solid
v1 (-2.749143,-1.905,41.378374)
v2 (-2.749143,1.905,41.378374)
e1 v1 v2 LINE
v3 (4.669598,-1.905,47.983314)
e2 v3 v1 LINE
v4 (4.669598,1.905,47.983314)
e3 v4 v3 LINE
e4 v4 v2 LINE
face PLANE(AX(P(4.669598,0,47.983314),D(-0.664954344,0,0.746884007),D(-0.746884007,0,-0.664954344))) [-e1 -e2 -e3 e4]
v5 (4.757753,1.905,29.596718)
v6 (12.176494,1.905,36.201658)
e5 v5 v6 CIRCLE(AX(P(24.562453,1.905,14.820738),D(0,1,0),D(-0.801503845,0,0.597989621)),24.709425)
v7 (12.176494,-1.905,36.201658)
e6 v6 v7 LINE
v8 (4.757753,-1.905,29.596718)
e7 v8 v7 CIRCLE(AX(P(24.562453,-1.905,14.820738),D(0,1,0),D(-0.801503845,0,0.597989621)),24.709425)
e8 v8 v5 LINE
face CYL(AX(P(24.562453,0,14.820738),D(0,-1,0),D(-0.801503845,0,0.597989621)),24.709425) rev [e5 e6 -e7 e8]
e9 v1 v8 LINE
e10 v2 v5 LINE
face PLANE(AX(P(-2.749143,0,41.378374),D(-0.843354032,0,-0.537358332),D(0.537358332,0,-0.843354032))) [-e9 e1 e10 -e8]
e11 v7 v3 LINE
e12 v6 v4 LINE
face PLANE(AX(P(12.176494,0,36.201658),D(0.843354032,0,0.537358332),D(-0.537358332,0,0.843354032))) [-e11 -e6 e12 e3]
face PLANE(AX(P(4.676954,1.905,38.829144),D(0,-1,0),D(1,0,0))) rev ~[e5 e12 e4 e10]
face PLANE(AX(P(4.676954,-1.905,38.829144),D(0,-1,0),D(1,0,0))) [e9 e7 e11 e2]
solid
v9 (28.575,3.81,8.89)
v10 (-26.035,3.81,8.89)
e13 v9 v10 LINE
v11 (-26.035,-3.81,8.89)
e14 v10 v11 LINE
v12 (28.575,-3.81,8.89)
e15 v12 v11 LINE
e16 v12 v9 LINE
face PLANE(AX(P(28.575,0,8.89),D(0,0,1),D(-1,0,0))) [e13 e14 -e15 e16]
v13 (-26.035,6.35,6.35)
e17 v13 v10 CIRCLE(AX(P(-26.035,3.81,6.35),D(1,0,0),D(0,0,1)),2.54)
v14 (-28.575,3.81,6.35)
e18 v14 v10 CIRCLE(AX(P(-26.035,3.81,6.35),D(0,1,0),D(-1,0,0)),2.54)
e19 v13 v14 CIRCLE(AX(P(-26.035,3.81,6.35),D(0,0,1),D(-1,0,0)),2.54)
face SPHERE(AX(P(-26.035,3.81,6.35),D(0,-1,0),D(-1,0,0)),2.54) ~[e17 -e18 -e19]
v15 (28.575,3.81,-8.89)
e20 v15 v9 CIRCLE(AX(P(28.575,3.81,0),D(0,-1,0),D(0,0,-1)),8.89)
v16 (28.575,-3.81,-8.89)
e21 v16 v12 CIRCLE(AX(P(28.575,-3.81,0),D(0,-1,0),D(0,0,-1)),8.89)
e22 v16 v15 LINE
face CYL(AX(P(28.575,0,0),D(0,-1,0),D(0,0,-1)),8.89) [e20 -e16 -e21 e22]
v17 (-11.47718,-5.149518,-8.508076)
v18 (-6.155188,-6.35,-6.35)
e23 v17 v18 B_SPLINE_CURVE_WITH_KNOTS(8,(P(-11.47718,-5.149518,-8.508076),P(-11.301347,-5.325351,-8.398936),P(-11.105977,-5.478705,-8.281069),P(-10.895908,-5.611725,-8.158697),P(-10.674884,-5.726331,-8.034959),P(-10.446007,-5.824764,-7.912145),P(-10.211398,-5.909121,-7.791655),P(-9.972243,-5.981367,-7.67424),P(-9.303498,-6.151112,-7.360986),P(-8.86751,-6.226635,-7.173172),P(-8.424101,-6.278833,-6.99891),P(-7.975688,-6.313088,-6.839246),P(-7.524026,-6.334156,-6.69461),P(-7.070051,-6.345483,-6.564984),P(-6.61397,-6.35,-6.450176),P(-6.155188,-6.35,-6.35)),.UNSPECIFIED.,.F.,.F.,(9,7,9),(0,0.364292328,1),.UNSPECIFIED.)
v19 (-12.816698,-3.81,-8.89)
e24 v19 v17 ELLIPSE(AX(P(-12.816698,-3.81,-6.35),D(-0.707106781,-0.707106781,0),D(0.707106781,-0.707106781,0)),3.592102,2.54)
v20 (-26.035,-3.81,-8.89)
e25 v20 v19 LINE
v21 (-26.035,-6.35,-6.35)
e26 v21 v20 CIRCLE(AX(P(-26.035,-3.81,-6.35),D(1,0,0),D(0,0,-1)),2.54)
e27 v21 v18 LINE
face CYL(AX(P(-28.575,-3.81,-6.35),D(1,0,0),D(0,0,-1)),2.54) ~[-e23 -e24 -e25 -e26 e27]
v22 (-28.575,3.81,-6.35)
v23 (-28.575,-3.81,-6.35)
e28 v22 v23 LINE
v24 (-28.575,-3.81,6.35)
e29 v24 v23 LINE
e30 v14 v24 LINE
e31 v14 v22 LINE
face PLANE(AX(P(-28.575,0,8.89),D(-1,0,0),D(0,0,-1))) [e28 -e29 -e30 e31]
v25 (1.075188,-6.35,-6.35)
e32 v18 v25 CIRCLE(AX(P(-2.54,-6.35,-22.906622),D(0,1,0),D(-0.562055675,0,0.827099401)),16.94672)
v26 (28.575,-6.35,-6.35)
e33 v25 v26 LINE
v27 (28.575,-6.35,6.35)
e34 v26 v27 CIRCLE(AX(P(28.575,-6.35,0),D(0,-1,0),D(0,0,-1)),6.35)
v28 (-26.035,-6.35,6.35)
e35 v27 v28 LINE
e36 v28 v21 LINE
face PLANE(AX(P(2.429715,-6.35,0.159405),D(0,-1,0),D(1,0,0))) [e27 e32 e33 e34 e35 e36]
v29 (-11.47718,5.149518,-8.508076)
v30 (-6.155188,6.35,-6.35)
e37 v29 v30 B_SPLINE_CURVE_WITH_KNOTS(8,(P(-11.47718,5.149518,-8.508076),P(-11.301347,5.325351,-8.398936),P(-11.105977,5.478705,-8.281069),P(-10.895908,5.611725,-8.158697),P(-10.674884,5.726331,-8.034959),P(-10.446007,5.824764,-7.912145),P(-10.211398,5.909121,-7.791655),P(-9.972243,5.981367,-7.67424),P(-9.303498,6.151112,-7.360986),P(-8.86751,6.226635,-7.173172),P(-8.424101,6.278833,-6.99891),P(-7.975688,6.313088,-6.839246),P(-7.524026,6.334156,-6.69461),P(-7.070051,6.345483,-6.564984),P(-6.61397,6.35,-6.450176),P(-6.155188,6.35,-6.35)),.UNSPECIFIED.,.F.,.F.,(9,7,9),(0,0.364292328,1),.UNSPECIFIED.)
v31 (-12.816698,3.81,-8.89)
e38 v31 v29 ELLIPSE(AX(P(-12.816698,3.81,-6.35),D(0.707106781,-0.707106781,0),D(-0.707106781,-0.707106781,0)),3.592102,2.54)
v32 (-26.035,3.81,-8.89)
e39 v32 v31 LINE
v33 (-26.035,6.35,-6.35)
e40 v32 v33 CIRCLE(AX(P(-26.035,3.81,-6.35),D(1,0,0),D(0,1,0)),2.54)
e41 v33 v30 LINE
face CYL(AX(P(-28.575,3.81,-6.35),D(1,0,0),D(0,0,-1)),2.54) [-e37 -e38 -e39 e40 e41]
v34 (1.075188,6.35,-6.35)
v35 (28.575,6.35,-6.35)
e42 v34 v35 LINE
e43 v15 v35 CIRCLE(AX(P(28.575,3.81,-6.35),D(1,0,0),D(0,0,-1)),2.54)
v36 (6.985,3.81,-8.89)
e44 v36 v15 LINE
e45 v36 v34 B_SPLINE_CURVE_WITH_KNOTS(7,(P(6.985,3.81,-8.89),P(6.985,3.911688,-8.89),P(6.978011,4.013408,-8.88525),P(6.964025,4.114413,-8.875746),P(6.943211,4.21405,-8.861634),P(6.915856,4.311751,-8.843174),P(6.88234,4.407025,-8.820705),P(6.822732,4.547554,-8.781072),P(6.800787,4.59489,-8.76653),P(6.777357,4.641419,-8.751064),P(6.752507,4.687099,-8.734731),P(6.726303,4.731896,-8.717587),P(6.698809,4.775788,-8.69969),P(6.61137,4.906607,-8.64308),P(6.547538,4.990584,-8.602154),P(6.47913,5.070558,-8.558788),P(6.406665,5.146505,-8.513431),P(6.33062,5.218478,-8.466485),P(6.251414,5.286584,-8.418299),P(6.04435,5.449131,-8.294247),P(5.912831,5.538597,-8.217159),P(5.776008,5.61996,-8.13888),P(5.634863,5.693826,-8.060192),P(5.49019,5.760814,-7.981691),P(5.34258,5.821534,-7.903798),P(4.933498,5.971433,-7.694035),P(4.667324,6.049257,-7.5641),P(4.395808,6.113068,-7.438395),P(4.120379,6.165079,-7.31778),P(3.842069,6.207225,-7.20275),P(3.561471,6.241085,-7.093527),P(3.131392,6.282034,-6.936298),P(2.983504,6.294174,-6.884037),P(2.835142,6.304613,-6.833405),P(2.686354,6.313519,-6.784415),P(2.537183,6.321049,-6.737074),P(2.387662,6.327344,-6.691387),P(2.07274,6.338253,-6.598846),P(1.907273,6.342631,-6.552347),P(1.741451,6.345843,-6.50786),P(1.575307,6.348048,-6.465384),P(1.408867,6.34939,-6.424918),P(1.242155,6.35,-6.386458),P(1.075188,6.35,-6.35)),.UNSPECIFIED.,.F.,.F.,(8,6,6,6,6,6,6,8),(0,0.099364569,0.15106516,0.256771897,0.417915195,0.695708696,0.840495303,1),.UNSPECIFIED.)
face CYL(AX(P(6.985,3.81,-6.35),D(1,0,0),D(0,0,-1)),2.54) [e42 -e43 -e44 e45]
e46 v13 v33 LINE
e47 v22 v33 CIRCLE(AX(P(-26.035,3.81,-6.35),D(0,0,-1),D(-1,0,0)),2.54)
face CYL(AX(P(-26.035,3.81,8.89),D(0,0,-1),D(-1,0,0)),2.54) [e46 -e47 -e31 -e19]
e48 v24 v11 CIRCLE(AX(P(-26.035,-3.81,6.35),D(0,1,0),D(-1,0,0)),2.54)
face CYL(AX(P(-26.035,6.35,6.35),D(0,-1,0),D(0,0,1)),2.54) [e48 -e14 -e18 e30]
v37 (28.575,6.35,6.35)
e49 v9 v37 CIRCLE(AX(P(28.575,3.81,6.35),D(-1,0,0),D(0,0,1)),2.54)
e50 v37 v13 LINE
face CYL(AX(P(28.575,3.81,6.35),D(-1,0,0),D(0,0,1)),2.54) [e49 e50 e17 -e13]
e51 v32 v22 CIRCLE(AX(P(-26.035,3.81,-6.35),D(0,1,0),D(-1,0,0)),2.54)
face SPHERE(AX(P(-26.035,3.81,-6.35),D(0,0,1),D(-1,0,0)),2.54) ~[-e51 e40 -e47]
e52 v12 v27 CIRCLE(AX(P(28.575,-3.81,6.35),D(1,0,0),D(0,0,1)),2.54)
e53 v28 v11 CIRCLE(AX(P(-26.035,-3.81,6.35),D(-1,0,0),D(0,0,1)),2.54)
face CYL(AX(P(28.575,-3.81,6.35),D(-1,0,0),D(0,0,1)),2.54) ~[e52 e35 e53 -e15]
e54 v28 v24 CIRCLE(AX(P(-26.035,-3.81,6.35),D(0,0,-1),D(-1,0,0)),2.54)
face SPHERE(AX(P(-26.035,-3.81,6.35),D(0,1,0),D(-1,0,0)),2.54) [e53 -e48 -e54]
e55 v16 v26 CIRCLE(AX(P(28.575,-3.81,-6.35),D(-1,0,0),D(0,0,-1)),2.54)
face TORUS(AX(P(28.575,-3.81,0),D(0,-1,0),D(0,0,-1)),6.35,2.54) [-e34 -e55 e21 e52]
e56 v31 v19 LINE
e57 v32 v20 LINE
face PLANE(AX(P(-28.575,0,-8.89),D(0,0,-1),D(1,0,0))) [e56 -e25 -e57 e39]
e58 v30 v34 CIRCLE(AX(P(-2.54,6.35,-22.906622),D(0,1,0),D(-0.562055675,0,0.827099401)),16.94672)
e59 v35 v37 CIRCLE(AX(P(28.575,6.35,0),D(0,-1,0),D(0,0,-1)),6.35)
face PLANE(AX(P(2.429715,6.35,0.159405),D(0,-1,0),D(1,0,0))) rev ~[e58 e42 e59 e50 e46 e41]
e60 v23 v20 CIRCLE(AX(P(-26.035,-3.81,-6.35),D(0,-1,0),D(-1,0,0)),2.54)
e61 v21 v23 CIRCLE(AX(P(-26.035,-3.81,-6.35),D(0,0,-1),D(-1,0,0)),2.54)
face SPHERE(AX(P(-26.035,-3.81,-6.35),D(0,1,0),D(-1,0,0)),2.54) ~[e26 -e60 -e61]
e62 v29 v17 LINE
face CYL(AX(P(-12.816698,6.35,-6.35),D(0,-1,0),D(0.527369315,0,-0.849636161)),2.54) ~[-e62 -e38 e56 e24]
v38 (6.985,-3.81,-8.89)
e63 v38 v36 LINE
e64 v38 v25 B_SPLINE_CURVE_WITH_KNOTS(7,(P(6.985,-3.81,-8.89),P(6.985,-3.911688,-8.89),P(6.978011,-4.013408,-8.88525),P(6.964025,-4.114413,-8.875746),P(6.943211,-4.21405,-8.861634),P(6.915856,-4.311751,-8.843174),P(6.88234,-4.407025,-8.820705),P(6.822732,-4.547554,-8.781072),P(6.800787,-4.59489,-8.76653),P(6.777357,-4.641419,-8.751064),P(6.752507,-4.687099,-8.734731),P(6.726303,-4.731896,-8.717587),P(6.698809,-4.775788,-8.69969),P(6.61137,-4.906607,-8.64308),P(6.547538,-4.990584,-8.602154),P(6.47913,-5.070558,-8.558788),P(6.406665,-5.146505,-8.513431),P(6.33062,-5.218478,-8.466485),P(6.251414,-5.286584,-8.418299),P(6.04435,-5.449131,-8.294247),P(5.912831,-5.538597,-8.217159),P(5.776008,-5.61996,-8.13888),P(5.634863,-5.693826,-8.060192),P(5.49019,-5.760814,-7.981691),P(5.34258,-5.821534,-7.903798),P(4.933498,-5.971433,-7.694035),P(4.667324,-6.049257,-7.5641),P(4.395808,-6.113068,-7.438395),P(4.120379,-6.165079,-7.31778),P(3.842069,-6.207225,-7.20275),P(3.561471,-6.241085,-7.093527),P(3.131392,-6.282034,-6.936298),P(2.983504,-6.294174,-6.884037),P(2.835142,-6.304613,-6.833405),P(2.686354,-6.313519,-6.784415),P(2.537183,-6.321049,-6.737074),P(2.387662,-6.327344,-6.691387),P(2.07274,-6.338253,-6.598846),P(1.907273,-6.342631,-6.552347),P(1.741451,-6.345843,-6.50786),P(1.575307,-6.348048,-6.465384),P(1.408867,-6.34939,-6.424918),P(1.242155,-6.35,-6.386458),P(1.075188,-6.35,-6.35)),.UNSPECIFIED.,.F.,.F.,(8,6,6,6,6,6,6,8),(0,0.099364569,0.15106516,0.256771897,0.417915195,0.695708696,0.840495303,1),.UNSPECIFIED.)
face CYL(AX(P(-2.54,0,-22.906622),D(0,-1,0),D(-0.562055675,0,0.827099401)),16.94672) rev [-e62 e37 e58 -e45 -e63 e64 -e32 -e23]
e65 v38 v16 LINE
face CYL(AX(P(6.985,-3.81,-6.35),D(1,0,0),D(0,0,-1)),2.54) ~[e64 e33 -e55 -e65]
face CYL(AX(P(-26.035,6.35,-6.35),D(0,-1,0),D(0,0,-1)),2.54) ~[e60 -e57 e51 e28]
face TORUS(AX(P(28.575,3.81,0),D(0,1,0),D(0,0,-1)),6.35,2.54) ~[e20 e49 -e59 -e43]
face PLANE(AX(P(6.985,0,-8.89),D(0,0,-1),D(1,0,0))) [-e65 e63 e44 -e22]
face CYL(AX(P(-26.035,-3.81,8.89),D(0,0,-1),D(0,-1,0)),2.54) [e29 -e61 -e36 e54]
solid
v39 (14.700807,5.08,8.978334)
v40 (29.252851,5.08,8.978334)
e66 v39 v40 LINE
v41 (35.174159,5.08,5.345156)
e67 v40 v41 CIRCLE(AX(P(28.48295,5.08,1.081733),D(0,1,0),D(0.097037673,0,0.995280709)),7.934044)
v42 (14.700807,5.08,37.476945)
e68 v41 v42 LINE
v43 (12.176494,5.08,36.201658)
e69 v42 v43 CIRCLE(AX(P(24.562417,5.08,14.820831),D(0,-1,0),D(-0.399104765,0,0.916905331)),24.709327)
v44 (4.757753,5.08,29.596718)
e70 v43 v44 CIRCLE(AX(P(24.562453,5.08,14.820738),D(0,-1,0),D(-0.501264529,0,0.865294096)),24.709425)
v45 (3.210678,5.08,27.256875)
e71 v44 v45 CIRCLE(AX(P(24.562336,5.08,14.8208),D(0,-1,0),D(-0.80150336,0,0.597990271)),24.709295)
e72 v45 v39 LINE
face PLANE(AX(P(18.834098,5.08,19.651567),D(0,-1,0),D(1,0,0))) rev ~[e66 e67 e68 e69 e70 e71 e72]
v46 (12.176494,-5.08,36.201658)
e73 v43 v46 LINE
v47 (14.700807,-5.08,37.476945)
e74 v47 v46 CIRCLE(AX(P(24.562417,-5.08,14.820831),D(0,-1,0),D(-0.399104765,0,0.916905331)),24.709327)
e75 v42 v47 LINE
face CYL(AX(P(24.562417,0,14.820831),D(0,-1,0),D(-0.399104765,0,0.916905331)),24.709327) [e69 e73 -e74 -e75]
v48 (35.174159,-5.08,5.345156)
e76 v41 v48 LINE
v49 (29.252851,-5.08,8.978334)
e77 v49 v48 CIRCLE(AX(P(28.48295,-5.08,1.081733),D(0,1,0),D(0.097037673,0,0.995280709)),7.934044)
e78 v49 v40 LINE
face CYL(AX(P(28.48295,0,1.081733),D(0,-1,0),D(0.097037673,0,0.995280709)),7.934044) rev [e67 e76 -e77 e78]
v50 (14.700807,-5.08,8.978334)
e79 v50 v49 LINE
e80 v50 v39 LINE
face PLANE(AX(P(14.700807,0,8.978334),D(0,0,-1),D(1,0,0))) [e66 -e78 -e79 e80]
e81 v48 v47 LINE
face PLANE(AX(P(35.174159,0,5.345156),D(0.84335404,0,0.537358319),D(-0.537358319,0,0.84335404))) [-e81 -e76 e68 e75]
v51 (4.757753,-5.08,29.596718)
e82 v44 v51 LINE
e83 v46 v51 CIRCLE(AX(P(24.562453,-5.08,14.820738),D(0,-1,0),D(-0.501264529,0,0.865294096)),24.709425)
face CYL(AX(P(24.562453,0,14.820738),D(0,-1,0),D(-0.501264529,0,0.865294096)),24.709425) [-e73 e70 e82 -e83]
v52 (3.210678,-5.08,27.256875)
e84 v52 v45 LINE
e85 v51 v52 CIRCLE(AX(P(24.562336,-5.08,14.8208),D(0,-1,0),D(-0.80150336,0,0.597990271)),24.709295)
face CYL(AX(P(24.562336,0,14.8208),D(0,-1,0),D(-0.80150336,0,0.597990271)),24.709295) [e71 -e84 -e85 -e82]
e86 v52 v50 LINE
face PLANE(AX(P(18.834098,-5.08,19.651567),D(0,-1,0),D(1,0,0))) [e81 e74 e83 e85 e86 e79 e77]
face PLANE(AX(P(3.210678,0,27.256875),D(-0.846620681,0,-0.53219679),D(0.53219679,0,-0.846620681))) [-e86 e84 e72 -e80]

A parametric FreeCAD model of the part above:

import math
import FreeCAD as App
import Part
import Sketcher
Q = App.Units.Quantity


def edges_at(feature, points):
    """Names of the edges that pass closest to the given points."""
    edges = feature.Shape.Edges
    near = lambda p: min(range(len(edges)), key=lambda i: edges[i].distToShape(Part.Vertex(*p))[0])
    return sorted({f"Edge{near(p) + 1}" for p in points})

doc = App.newDocument("Part")
params = doc.addObject("Spreadsheet::Sheet", "Params")
for row, (alias, value) in enumerate([
    ("sketch1_radius", "0.35 in"),
    ("sketch1_width", "2.25 in"),
    ("sketch1_width2", "0.65 in"),
    ("sketch1_width3", "0.85 in"),
    ("pad1_length", "0.5 in"),
    ("fillet_radius", "0.1 in"),
    ("sketch2_length", "0.55 in"),
    ("pad2_length", "0.15 in"),
    ("sketch3_length", "1.5 in"),
    ("sketch3_length2", "0.85 in"),
    ("pad3_length", "0.4 in"),
], start=1):
    params.set(f"A{row}", alias)
    params.set(f"B{row}", "=" + value)
    params.setAlias(f"B{row}", alias)

body = doc.addObject("PartDesign::Body", "Body")

# Sketch on XZ plane
sketch1 = body.newObject("Sketcher::SketchObject", "Sketch")
sketch1.AttachmentSupport = (doc.getObject("XZ_Plane"), [""])
sketch1.MapMode = "FlatFace"
sketch1.addGeometry(Part.LineSegment(App.Vector(29, 9, 0), App.Vector(-29, 9, 0)), False)
sketch1.addGeometry(Part.LineSegment(App.Vector(-29, 9, 0), App.Vector(-29, -9, 0)), False)
sketch1.addGeometry(Part.LineSegment(App.Vector(-29, -9, 0), App.Vector(-12, -9, 0)), False)
sketch1.addGeometry(Part.ArcOfCircle(Part.Circle(App.Vector(-3, -23, 0), App.Vector(0, 0, 1), 17), math.radians(56), math.radians(124)), False)
sketch1.addGeometry(Part.LineSegment(App.Vector(7, -9, 0), App.Vector(29, -9, 0)), False)
sketch1.addGeometry(Part.ArcOfCircle(Part.Circle(App.Vector(29, 0, 0), App.Vector(0, 0, 1), 9), math.radians(-90), math.radians(90)), False)
sketch1.addConstraint(Sketcher.Constraint("Coincident", 0, 2, 1, 1))
sketch1.addConstraint(Sketcher.Constraint("Coincident", 1, 2, 2, 1))
sketch1.addConstraint(Sketcher.Constraint("Coincident", 2, 2, 3, 2))
sketch1.addConstraint(Sketcher.Constraint("Coincident", 3, 1, 4, 1))
sketch1.addConstraint(Sketcher.Constraint("Tangent", 4, 2, 5, 1))
sketch1.addConstraint(Sketcher.Constraint("Tangent", 5, 2, 0, 1))
sketch1.addConstraint(Sketcher.Constraint("Horizontal", 0))
sketch1.addConstraint(Sketcher.Constraint("Vertical", 1))
sketch1.addConstraint(Sketcher.Constraint("Horizontal", 2))
sketch1.addConstraint(Sketcher.Constraint("Horizontal", 4))
sketch1.addConstraint(Sketcher.Constraint("Symmetric", 0, 2, 4, 2, -1, 1))
sketch1.addConstraint(Sketcher.Constraint("Horizontal", 2, 2, 3, 1))
sketch1.addConstraint(Sketcher.Constraint("Radius", 5, Q("0.35 in")))
sketch1.addConstraint(Sketcher.Constraint("DistanceX", 0, 2, 0, 1, Q("2.25 in")))
sketch1.addConstraint(Sketcher.Constraint("DistanceX", 2, 1, 2, 2, Q("0.65 in")))
sketch1.addConstraint(Sketcher.Constraint("DistanceX", 4, 1, 4, 2, Q("0.85 in")))
sketch1.addConstraint(Sketcher.Constraint("Radius", 3, 16.94672))
sketch1.setExpression("Constraints[12]", "Params.sketch1_radius")
sketch1.setExpression("Constraints[13]", "Params.sketch1_width")
sketch1.setExpression("Constraints[14]", "Params.sketch1_width2")
sketch1.setExpression("Constraints[15]", "Params.sketch1_width3")
pad1 = body.newObject("PartDesign::Pad", "Pad")
pad1.Profile = sketch1
pad1.setExpression("Length", "Params.pad1_length")
pad1.Midplane = True
doc.recompute()

fillet = body.newObject("PartDesign::Fillet", "Fillet")
fillet.Base = (pad1, edges_at(pad1, [
    (-28.575, 0, 8.89),
    (-28.575, 6.35, 0),
    (-28.575, 0, -8.89),
    (-28.575, -6.35, 0),
    (28.575, 0, 8.89),
    (0, 6.35, 8.89),
    (0, -6.35, 8.89),
    (-20.32, 6.35, -8.89),
    (-12.065, 0, -8.89),
    (-20.32, -6.35, -8.89),
]))
fillet.setExpression("Radius", "Params.fillet_radius")
body2 = doc.addObject("PartDesign::Body", "Body001")

# Sketch on XZ plane
sketch2 = body2.newObject("Sketcher::SketchObject", "Sketch001")
sketch2.AttachmentSupport = (doc.getObject("XZ_Plane001"), [""])
sketch2.MapMode = "FlatFace"
sketch2.addGeometry(Part.ArcOfCircle(Part.Circle(App.Vector(25, 15, 0), App.Vector(0, 0, 1), 25), math.radians(120), math.radians(143)), False)
sketch2.addGeometry(Part.LineSegment(App.Vector(12, 36, 0), App.Vector(5, 48, 0)), False)
sketch2.addGeometry(Part.LineSegment(App.Vector(5, 48, 0), App.Vector(-3, 41, 0)), False)
sketch2.addGeometry(Part.LineSegment(App.Vector(-3, 41, 0), App.Vector(5, 30, 0)), False)
sketch2.addConstraint(Sketcher.Constraint("Coincident", 0, 1, 1, 1))
sketch2.addConstraint(Sketcher.Constraint("Coincident", 1, 2, 2, 1))
sketch2.addConstraint(Sketcher.Constraint("Coincident", 2, 2, 3, 1))
sketch2.addConstraint(Sketcher.Constraint("Coincident", 3, 2, 0, 2))
sketch2.addConstraint(Sketcher.Constraint("Parallel", 1, 3))
sketch2.addConstraint(Sketcher.Constraint("Equal", 1, 3))
sketch2.addConstraint(Sketcher.Constraint("Distance", 1, Q("0.55 in")))
sketch2.addConstraint(Sketcher.Constraint("Radius", 0, 24.709425))
sketch2.addConstraint(Sketcher.Constraint("DistanceX", 3, 2, 0, 3, 19.8047))
sketch2.addConstraint(Sketcher.Constraint("DistanceY", -1, 1, 0, 3, 14.820738))
sketch2.addConstraint(Sketcher.Constraint("DistanceY", -1, 1, 0, 1, 36.201658))
sketch2.addConstraint(Sketcher.Constraint("DistanceX", -1, 1, 0, 3, 24.562453))
sketch2.addConstraint(Sketcher.Constraint("DistanceX", -1, 1, 1, 2, 4.669598))
sketch2.setExpression("Constraints[6]", "Params.sketch2_length")
pad2 = body2.newObject("PartDesign::Pad", "Pad001")
pad2.Profile = sketch2
pad2.setExpression("Length", "Params.pad2_length")
pad2.Midplane = True
body3 = doc.addObject("PartDesign::Body", "Body002")

# Sketch on XZ plane
sketch3 = body3.newObject("Sketcher::SketchObject", "Sketch002")
sketch3.AttachmentSupport = (doc.getObject("XZ_Plane002"), [""])
sketch3.MapMode = "FlatFace"
sketch3.addGeometry(Part.ArcOfCircle(Part.Circle(App.Vector(28.48295, 1.081733, 0), App.Vector(0, 0, 1), 7.934044), math.radians(32.503976), math.radians(84.431388)), False)
sketch3.addGeometry(Part.LineSegment(App.Vector(35.174159, 5.345156, 0), App.Vector(14.700807, 37.476945, 0)), False)
sketch3.addGeometry(Part.ArcOfCircle(Part.Circle(App.Vector(24.562417, 14.820831, 0), App.Vector(0, 0, 1), 24.709327), math.radians(113.522225), math.radians(120.083733)), False)
sketch3.addGeometry(Part.ArcOfCircle(Part.Circle(App.Vector(24.562453, 14.820738, 0), App.Vector(0, 0, 1), 24.709425), math.radians(120.083696), math.radians(143.27395)), False)
sketch3.addGeometry(Part.ArcOfCircle(Part.Circle(App.Vector(24.562336, 14.8208, 0), App.Vector(0, 0, 1), 24.709295), math.radians(143.273903), math.radians(149.781736)), False)
sketch3.addGeometry(Part.LineSegment(App.Vector(3.210678, 27.256875, 0), App.Vector(14.700807, 8.978334, 0)), False)
sketch3.addGeometry(Part.LineSegment(App.Vector(14.700807, 8.978334, 0), App.Vector(29.252851, 8.978334, 0)), False)
sketch3.addConstraint(Sketcher.Constraint("Coincident", 0, 1, 1, 1))
sketch3.addConstraint(Sketcher.Constraint("Coincident", 1, 2, 2, 1))
sketch3.addConstraint(Sketcher.Constraint("Coincident", 2, 2, 3, 1))
sketch3.addConstraint(Sketcher.Constraint("Coincident", 3, 2, 4, 1))
sketch3.addConstraint(Sketcher.Constraint("Coincident", 4, 2, 5, 1))
sketch3.addConstraint(Sketcher.Constraint("Coincident", 5, 2, 6, 1))
sketch3.addConstraint(Sketcher.Constraint("Coincident", 6, 2, 0, 2))
sketch3.addConstraint(Sketcher.Constraint("Horizontal", 6))
sketch3.addConstraint(Sketcher.Constraint("Distance", 1, Q("1.5 in")))
sketch3.addConstraint(Sketcher.Constraint("Distance", 5, Q("0.85 in")))
sketch3.addConstraint(Sketcher.Constraint("Radius", 0, 7.934044))
sketch3.addConstraint(Sketcher.Constraint("Radius", 2, 24.709327))
sketch3.addConstraint(Sketcher.Constraint("Radius", 3, 24.709425))
sketch3.addConstraint(Sketcher.Constraint("Radius", 4, 24.709295))
sketch3.addConstraint(Sketcher.Constraint("DistanceY", -1, 1, 4, 3, 14.8208))
sketch3.addConstraint(Sketcher.Constraint("DistanceY", 0, 3, 2, 3, 13.739098))
sketch3.addConstraint(Sketcher.Constraint("DistanceX", 3, 2, 3, 3, 19.8047))
sketch3.addConstraint(Sketcher.Constraint("DistanceY", 0, 3, 5, 2, 7.896601))
sketch3.addConstraint(Sketcher.Constraint("DistanceX", 3, 3, 6, 2, 4.690398))
sketch3.addConstraint(Sketcher.Constraint("DistanceX", 6, 1, 6, 2, 14.552044))
sketch3.addConstraint(Sketcher.Constraint("DistanceX", -1, 1, 0, 3, 28.48295))
sketch3.addConstraint(Sketcher.Constraint("DistanceY", -1, 1, 2, 3, 14.820831))
sketch3.addConstraint(Sketcher.Constraint("DistanceY", -1, 1, 3, 3, 14.820738))
sketch3.addConstraint(Sketcher.Constraint("DistanceX", -1, 1, 0, 1, 35.174159))
sketch3.addConstraint(Sketcher.Constraint("DistanceY", -1, 1, 2, 2, 36.201658))
sketch3.setExpression("Constraints[8]", "Params.sketch3_length")
sketch3.setExpression("Constraints[9]", "Params.sketch3_length2")
pad3 = body3.newObject("PartDesign::Pad", "Pad002")
pad3.Profile = sketch3
pad3.setExpression("Length", "Params.pad3_length")
pad3.Midplane = True

doc.recompute()
